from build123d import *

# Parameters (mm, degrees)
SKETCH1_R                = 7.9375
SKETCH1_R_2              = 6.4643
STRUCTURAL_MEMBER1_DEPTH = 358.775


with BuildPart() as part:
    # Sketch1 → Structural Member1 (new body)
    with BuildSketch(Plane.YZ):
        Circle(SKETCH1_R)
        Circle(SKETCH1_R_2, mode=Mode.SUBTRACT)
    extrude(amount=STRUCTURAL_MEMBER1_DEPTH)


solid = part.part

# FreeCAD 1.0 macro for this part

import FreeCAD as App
import Part
import Sketcher
from FreeCAD import Vector
Q = App.Units.Quantity

doc = App.newDocument("Part")
params = doc.addObject("Spreadsheet::Sheet", "Params")
for row, (alias, value) in enumerate([
    ("sketch1_diameter", "0.625 in"),
    ("sketch1_diameter2", "0.509 in"),
    ("pad1_length", "14.125 in"),
], start=1):
    params.set(f"A{row}", alias)
    params.set(f"B{row}", "=" + value)
    params.setAlias(f"B{row}", alias)

body = doc.addObject("PartDesign::Body", "Body")

sketch1 = body.newObject("Sketcher::SketchObject", "Sketch")
sketch1.AttachmentSupport = (doc.getObject("YZ_Plane"), [""])
sketch1.MapMode = "FlatFace"
sketch1.addGeometry([
    Part.Circle(Vector(0, 0, 0), Vector(0, 0, 1), 8),
    Part.Circle(Vector(0, 0, 0), Vector(0, 0, 1), 6),
], False)
sketch1.addConstraint([
    Sketcher.Constraint("Coincident", 0, 3, -1, 1),
    Sketcher.Constraint("Coincident", 1, 3, -1, 1),
    Sketcher.Constraint("Diameter", 0, Q("0.625 in")),
    Sketcher.Constraint("Diameter", 1, Q("0.509 in")),
])
sketch1.setExpression("Constraints[2]", "Params.sketch1_diameter")
sketch1.setExpression("Constraints[3]", "Params.sketch1_diameter2")
pad1 = body.newObject("PartDesign::Pad", "Pad")
pad1.Profile = sketch1
pad1.setExpression("Length", "Params.pad1_length")

doc.recompute()
